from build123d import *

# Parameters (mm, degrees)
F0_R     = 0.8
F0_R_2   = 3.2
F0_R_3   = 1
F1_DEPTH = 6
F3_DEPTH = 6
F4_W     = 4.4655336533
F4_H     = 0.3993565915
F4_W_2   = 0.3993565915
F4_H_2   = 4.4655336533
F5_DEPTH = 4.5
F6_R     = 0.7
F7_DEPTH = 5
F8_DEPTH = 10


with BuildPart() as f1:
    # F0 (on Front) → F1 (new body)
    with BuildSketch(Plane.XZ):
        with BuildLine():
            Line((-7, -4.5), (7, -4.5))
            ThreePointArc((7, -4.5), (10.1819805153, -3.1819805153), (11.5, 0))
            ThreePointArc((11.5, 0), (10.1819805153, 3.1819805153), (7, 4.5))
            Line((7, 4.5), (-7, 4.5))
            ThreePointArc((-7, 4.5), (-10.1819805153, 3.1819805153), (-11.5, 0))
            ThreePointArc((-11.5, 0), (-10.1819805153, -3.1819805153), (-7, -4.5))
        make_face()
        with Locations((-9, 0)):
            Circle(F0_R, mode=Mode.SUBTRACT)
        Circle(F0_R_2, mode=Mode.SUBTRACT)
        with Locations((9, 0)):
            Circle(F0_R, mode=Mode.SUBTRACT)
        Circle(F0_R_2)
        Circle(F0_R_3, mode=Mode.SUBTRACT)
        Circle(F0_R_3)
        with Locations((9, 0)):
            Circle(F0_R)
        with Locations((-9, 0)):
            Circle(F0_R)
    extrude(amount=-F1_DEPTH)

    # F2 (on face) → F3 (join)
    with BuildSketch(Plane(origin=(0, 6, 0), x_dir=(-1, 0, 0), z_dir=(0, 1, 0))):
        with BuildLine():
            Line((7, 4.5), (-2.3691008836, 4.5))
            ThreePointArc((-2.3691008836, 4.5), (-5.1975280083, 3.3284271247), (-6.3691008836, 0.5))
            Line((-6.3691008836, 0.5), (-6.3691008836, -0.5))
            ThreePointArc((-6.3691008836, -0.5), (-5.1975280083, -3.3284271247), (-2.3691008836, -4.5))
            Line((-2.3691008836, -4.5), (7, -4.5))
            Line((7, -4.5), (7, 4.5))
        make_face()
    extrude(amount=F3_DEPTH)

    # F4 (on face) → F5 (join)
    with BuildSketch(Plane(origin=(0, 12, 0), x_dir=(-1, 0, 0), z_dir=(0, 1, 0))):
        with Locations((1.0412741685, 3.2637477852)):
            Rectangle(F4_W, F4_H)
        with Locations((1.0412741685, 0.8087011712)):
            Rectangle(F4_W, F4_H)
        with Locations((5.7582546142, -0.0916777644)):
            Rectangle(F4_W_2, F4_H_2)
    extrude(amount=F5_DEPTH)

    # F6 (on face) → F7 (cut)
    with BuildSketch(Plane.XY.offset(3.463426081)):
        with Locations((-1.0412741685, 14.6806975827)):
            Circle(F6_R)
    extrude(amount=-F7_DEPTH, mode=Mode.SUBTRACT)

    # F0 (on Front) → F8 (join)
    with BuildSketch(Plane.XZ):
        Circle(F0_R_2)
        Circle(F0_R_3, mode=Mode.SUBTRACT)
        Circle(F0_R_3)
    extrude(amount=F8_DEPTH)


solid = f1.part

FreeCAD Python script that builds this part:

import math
import FreeCAD as App
import Part
import Sketcher
Q = App.Units.Quantity

doc = App.newDocument("Part")
params = doc.addObject("Spreadsheet::Sheet", "Params")
for row, (alias, value) in enumerate([
    ("sketch1_radius", "4.5 mm"),
    ("sketch1_width", "14 mm"),
    ("pad1_length", "6 mm"),
    ("sketch2_radius", "4 mm"),
    ("sketch2_height", "1 mm"),
    ("pad2_length", "6 mm"),
    ("pad3_length", "4.5 mm"),
    ("sketch4_diameter", "1.4 mm"),
    ("pocket1_length", "5 mm"),
    ("sketch5_diameter", "6.4 mm"),
    ("pad4_length", "10 mm"),
], start=1):
    params.set(f"A{row}", alias)
    params.set(f"B{row}", "=" + value)
    params.setAlias(f"B{row}", alias)

body = doc.addObject("PartDesign::Body", "Body")

sketch1 = body.newObject("Sketcher::SketchObject", "Sketch")
sketch1.AttachmentSupport = (doc.getObject("XZ_Plane"), [""])
sketch1.MapMode = "FlatFace"
sketch1.addGeometry([
    Part.LineSegment(App.Vector(-7, -4.5, 0), App.Vector(7, -4.5, 0)),
    Part.ArcOfCircle(Part.Circle(App.Vector(7, 0, 0), App.Vector(0, 0, 1), 4.5), math.radians(-90), math.radians(0)),
    Part.ArcOfCircle(Part.Circle(App.Vector(7, 0, 0), App.Vector(0, 0, 1), 4.5), math.radians(0), math.radians(90)),
    Part.LineSegment(App.Vector(7, 4.5, 0), App.Vector(-7, 4.5, 0)),
    Part.ArcOfCircle(Part.Circle(App.Vector(-7, 0, 0), App.Vector(0, 0, 1), 4.5), math.radians(90), math.radians(180)),
    Part.ArcOfCircle(Part.Circle(App.Vector(-7, 0, 0), App.Vector(0, 0, 1), 4.5), math.radians(180), math.radians(270)),
], False)
sketch1.addConstraint([
    Sketcher.Constraint("Tangent", 0, 2, 1, 1),
    Sketcher.Constraint("Tangent", 1, 2, 2, 1),
    Sketcher.Constraint("Tangent", 2, 2, 3, 1),
    Sketcher.Constraint("Tangent", 3, 2, 4, 1),
    Sketcher.Constraint("Tangent", 4, 2, 5, 1),
    Sketcher.Constraint("Tangent", 5, 2, 0, 1),
    Sketcher.Constraint("Horizontal", 0),
    Sketcher.Constraint("Horizontal", 3),
    Sketcher.Constraint("Equal", 1, 2),
    Sketcher.Constraint("Equal", 2, 4),
    Sketcher.Constraint("Symmetric", 1, 3, 4, 3, -1, 1),
    Sketcher.Constraint("PointOnObject", 1, 2, -1),
    Sketcher.Constraint("PointOnObject", 4, 2, -1),
    Sketcher.Constraint("Radius", 1, Q("4.5 mm")),
    Sketcher.Constraint("DistanceX", 0, 1, 0, 2, Q("14 mm")),
])
sketch1.setExpression("Constraints[13]", "Params.sketch1_radius")
sketch1.setExpression("Constraints[14]", "Params.sketch1_width")
pad1 = body.newObject("PartDesign::Pad", "Pad")
pad1.Profile = sketch1
pad1.setExpression("Length", "Params.pad1_length")
pad1.Reversed = True

sketch2 = body.newObject("Sketcher::SketchObject", "Sketch001")
sketch2.AttachmentSupport = (doc.getObject("XZ_Plane"), [""])
sketch2.MapMode = "FlatFace"
sketch2.AttachmentOffset = App.Placement(App.Vector(0, 0, -6), App.Rotation())
sketch2.addGeometry([
    Part.LineSegment(App.Vector(-7, 4.5, 0), App.Vector(2.4, 4.5, 0)),
    Part.ArcOfCircle(Part.Circle(App.Vector(2.4, 0.5, 0), App.Vector(0, 0, 1), 4), math.radians(0), math.radians(90)),
    Part.LineSegment(App.Vector(6.4, 0.5, 0), App.Vector(6.4, -0.5, 0)),
    Part.ArcOfCircle(Part.Circle(App.Vector(2.4, -0.5, 0), App.Vector(0, 0, 1), 4), math.radians(-90), math.radians(0)),
    Part.LineSegment(App.Vector(2.4, -4.5, 0), App.Vector(-7, -4.5, 0)),
    Part.LineSegment(App.Vector(-7, -4.5, 0), App.Vector(-7, 4.5, 0)),
], False)
sketch2.addConstraint([
    Sketcher.Constraint("Tangent", 0, 2, 1, 2),
    Sketcher.Constraint("Tangent", 1, 1, 2, 1),
    Sketcher.Constraint("Tangent", 2, 2, 3, 2),
    Sketcher.Constraint("Tangent", 3, 1, 4, 1),
    Sketcher.Constraint("Coincident", 4, 2, 5, 1),
    Sketcher.Constraint("Coincident", 5, 2, 0, 1),
    Sketcher.Constraint("Horizontal", 0),
    Sketcher.Constraint("Vertical", 2),
    Sketcher.Constraint("Horizontal", 4),
    Sketcher.Constraint("Vertical", 5),
    Sketcher.Constraint("Equal", 1, 3),
    Sketcher.Constraint("Radius", 1, Q("4 mm")),
    Sketcher.Constraint("DistanceY", 2, 2, 2, 1, Q("1 mm")),
    Sketcher.Constraint("DistanceX", 4, 2, -1, 1, Q("7 mm")),
    Sketcher.Constraint("DistanceY", -1, 1, 1, 3, Q("0.5 mm")),
    Sketcher.Constraint("DistanceX", 0, 1, 0, 2, Q("9.369101 mm")),
])
sketch2.setExpression("Constraints[11]", "Params.sketch2_radius")
sketch2.setExpression("Constraints[12]", "Params.sketch2_height")
pad2 = body.newObject("PartDesign::Pad", "Pad001")
pad2.Profile = sketch2
pad2.setExpression("Length", "Params.pad2_length")
pad2.Reversed = True

sketch3 = body.newObject("Sketcher::SketchObject", "Sketch002")
sketch3.AttachmentSupport = (doc.getObject("XZ_Plane"), [""])
sketch3.MapMode = "FlatFace"
sketch3.AttachmentOffset = App.Placement(App.Vector(0, 0, -12), App.Rotation())
sketch3.addGeometry([
    Part.LineSegment(App.Vector(1.19, 3.46, 0), App.Vector(1.19, 3.06, 0)),
    Part.LineSegment(App.Vector(1.19, 3.06, 0), App.Vector(-3.27, 3.06, 0)),
    Part.LineSegment(App.Vector(-3.27, 3.06, 0), App.Vector(-3.27, 3.46, 0)),
    Part.LineSegment(App.Vector(-3.27, 3.46, 0), App.Vector(1.19, 3.46, 0)),
    Part.LineSegment(App.Vector(1.19, 1.01, 0), App.Vector(1.19, 0.61, 0)),
    Part.LineSegment(App.Vector(1.19, 0.61, 0), App.Vector(-3.27, 0.61, 0)),
    Part.LineSegment(App.Vector(-3.27, 0.61, 0), App.Vector(-3.27, 1.01, 0)),
    Part.LineSegment(App.Vector(-3.27, 1.01, 0), App.Vector(1.19, 1.01, 0)),
    Part.LineSegment(App.Vector(-5.56, 2.14, 0), App.Vector(-5.56, -2.32, 0)),
    Part.LineSegment(App.Vector(-5.56, -2.32, 0), App.Vector(-5.96, -2.32, 0)),
    Part.LineSegment(App.Vector(-5.96, -2.32, 0), App.Vector(-5.96, 2.14, 0)),
    Part.LineSegment(App.Vector(-5.96, 2.14, 0), App.Vector(-5.56, 2.14, 0)),
], False)
sketch3.addConstraint([
    Sketcher.Constraint("Coincident", 0, 2, 1, 1),
    Sketcher.Constraint("Coincident", 1, 2, 2, 1),
    Sketcher.Constraint("Coincident", 2, 2, 3, 1),
    Sketcher.Constraint("Coincident", 3, 2, 0, 1),
    Sketcher.Constraint("Coincident", 4, 2, 5, 1),
    Sketcher.Constraint("Coincident", 5, 2, 6, 1),
    Sketcher.Constraint("Coincident", 6, 2, 7, 1),
    Sketcher.Constraint("Coincident", 7, 2, 4, 1),
    Sketcher.Constraint("Coincident", 8, 2, 9, 1),
    Sketcher.Constraint("Coincident", 9, 2, 10, 1),
    Sketcher.Constraint("Coincident", 10, 2, 11, 1),
    Sketcher.Constraint("Coincident", 11, 2, 8, 1),
    Sketcher.Constraint("Vertical", 0),
    Sketcher.Constraint("Horizontal", 1),
    Sketcher.Constraint("Vertical", 2),
    Sketcher.Constraint("Horizontal", 3),
    Sketcher.Constraint("Vertical", 4),
    Sketcher.Constraint("Horizontal", 5),
    Sketcher.Constraint("Vertical", 6),
    Sketcher.Constraint("Horizontal", 7),
    Sketcher.Constraint("Vertical", 8),
    Sketcher.Constraint("Horizontal", 9),
    Sketcher.Constraint("Vertical", 10),
    Sketcher.Constraint("Horizontal", 11),
    Sketcher.Constraint("Vertical", 3, 2, 4, 2),
    Sketcher.Constraint("Vertical", 2, 2, 5, 2),
    Sketcher.Constraint("Equal", 11, 0),
    Sketcher.Constraint("Equal", 2, 4),
    Sketcher.Constraint("Equal", 7, 8),
    Sketcher.Constraint("DistanceX", 1, 2, 1, 1, Q("4.465534 mm")),
    Sketcher.Constraint("DistanceX", 9, 2, 9, 1, Q("0.399357 mm")),
    Sketcher.Constraint("DistanceY", -1, 1, 0, 2, Q("3.064069 mm")),
    Sketcher.Constraint("DistanceX", 1, 2, -1, 1, Q("3.274041 mm")),
    Sketcher.Constraint("DistanceY", -1, 1, 6, 2, Q("1.008379 mm")),
    Sketcher.Constraint("DistanceY", -1, 1, 10, 2, Q("2.141089 mm")),
    Sketcher.Constraint("DistanceX", 8, 2, 4, 2, Q("6.750069 mm")),
])
pad3 = body.newObject("PartDesign::Pad", "Pad002")
pad3.Profile = sketch3
pad3.setExpression("Length", "Params.pad3_length")
pad3.Reversed = True

sketch4 = body.newObject("Sketcher::SketchObject", "Sketch003")
sketch4.AttachmentSupport = (doc.getObject("XY_Plane"), [""])
sketch4.MapMode = "FlatFace"
sketch4.AttachmentOffset = App.Placement(App.Vector(0, 0, 3.463426), App.Rotation())
sketch4.addGeometry(Part.Circle(App.Vector(-1, 14.7, 0), App.Vector(0, 0, 1), 0.7), False)
sketch4.addConstraint([
    Sketcher.Constraint("Diameter", 0, Q("1.4 mm")),
    Sketcher.Constraint("DistanceX", 0, 3, -1, 1, Q("1.041274 mm")),
    Sketcher.Constraint("DistanceY", -1, 1, 0, 3, Q("14.680698 mm")),
])
sketch4.setExpression("Constraints[0]", "Params.sketch4_diameter")
pocket1 = body.newObject("PartDesign::Pocket", "Pocket")
pocket1.Profile = sketch4
pocket1.setExpression("Length", "Params.pocket1_length")

sketch5 = body.newObject("Sketcher::SketchObject", "Sketch004")
sketch5.AttachmentSupport = (doc.getObject("XZ_Plane"), [""])
sketch5.MapMode = "FlatFace"
sketch5.addGeometry(Part.Circle(App.Vector(0, 0, 0), App.Vector(0, 0, 1), 3.2), False)
sketch5.addConstraint([
    Sketcher.Constraint("Coincident", 0, 3, -1, 1),
    Sketcher.Constraint("Diameter", 0, Q("6.4 mm")),
])
sketch5.setExpression("Constraints[1]", "Params.sketch5_diameter")
pad4 = body.newObject("PartDesign::Pad", "Pad003")
pad4.Profile = sketch5
pad4.setExpression("Length", "Params.pad4_length")

doc.recompute()
